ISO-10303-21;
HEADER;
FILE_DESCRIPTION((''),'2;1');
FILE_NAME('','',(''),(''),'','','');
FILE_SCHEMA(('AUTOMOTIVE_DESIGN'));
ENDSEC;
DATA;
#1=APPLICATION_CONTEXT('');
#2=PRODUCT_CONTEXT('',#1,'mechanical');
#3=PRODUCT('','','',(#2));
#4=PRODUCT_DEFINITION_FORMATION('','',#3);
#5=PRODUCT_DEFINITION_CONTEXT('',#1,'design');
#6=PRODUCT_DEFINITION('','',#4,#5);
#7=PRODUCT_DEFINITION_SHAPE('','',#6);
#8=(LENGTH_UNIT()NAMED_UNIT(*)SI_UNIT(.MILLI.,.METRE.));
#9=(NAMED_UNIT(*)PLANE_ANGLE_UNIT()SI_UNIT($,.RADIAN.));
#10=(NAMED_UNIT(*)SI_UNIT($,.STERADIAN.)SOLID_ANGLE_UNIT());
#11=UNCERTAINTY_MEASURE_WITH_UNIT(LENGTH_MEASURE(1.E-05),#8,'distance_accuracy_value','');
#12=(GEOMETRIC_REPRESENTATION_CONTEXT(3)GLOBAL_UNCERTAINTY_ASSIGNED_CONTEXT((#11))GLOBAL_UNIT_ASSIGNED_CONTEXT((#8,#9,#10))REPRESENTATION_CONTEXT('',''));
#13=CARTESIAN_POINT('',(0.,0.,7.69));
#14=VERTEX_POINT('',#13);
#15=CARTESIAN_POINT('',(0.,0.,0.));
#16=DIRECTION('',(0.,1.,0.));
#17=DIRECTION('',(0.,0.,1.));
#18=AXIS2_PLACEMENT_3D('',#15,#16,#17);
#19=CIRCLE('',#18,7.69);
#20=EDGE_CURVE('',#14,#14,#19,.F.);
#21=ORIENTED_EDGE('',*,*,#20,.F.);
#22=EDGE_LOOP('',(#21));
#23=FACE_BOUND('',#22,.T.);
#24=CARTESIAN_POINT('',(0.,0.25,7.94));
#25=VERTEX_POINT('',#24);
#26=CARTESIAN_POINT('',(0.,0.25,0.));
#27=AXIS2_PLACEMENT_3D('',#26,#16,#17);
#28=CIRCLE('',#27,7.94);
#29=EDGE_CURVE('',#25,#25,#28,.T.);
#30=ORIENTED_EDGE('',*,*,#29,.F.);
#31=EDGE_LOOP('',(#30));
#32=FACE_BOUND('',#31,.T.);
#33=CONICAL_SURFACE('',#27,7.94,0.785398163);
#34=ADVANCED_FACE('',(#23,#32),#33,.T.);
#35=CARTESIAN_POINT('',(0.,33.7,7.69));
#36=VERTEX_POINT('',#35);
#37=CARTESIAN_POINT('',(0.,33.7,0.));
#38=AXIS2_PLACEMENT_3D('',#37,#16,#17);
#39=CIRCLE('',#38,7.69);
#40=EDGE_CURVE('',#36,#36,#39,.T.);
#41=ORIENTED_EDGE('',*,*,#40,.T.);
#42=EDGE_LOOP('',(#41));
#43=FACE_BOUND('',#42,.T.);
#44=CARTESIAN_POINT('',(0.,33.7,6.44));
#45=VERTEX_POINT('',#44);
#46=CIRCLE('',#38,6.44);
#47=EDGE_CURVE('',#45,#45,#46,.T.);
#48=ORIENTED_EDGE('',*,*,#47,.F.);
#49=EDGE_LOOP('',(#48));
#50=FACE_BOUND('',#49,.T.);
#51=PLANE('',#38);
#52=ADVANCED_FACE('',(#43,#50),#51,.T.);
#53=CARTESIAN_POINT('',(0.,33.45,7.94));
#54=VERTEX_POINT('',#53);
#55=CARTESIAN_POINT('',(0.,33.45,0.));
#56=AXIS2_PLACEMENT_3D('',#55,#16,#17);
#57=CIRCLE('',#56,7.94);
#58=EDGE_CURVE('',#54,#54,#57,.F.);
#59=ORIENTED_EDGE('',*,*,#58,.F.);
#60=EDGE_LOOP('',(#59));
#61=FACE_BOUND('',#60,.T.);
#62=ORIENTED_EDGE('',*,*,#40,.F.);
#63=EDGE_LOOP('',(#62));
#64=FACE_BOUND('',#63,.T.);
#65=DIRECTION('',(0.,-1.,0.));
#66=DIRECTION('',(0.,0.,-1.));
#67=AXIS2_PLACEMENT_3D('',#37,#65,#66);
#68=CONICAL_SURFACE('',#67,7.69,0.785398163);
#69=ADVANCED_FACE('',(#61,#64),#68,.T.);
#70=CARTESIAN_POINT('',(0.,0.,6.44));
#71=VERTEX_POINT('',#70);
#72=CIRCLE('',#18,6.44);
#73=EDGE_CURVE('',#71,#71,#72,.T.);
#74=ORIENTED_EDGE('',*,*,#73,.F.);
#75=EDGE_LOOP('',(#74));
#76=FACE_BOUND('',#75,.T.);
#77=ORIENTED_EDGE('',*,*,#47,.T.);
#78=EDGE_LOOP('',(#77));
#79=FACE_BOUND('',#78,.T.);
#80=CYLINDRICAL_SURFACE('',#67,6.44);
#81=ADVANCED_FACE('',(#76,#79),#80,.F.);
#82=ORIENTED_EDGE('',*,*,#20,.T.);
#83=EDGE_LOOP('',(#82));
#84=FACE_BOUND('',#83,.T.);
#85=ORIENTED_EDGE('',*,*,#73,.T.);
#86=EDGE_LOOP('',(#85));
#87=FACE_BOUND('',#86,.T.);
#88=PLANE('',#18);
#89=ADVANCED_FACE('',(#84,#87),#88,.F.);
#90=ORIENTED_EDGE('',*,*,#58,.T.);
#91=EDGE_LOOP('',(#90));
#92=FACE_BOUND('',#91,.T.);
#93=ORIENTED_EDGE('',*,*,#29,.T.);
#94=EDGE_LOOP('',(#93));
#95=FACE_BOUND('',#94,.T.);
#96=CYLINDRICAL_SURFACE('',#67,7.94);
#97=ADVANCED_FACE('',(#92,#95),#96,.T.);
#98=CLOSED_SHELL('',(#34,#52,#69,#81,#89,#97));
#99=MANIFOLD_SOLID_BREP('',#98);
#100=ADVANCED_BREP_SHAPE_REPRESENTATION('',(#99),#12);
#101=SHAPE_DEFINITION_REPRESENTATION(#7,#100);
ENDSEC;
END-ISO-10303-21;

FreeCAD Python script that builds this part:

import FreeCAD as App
import Part
import Sketcher
Q = App.Units.Quantity


def edges_at(feature, points):
    """Names of the edges that pass closest to the given points."""
    edges = feature.Shape.Edges
    near = lambda p: min(range(len(edges)), key=lambda i: edges[i].distToShape(Part.Vertex(*p))[0])
    return sorted({f"Edge{near(p) + 1}" for p in points})

doc = App.newDocument("Part")
params = doc.addObject("Spreadsheet::Sheet", "Params")
for row, (alias, value) in enumerate([
    ("sketch1_diameter", "15.88 mm"),
    ("sketch1_diameter2", "12.88 mm"),
    ("pad1_length", "33.7 mm"),
    ("chamfer_size", "0.25 mm"),
], start=1):
    params.set(f"A{row}", alias)
    params.set(f"B{row}", "=" + value)
    params.setAlias(f"B{row}", alias)

body = doc.addObject("PartDesign::Body", "Body")

sketch1 = body.newObject("Sketcher::SketchObject", "Sketch")
sketch1.AttachmentSupport = (doc.getObject("XZ_Plane"), [""])
sketch1.MapMode = "FlatFace"
sketch1.addGeometry([
    Part.Circle(App.Vector(0, 0, 0), App.Vector(0, 0, 1), 8),
    Part.Circle(App.Vector(0, 0, 0), App.Vector(0, 0, 1), 6),
], False)
sketch1.addConstraint([
    Sketcher.Constraint("Coincident", 0, 3, -1, 1),
    Sketcher.Constraint("Coincident", 1, 3, -1, 1),
    Sketcher.Constraint("Diameter", 0, Q("15.88 mm")),
    Sketcher.Constraint("Diameter", 1, Q("12.88 mm")),
])
sketch1.setExpression("Constraints[2]", "Params.sketch1_diameter")
sketch1.setExpression("Constraints[3]", "Params.sketch1_diameter2")
pad1 = body.newObject("PartDesign::Pad", "Pad")
pad1.Profile = sketch1
pad1.setExpression("Length", "Params.pad1_length")
pad1.Reversed = True
doc.recompute()

chamfer = body.newObject("PartDesign::Chamfer", "Chamfer")
chamfer.Base = (pad1, edges_at(pad1, [(-7.94, 0, 0), (-7.94, 33.7, 0)]))
chamfer.setExpression("Size", "Params.chamfer_size")

doc.recompute()
